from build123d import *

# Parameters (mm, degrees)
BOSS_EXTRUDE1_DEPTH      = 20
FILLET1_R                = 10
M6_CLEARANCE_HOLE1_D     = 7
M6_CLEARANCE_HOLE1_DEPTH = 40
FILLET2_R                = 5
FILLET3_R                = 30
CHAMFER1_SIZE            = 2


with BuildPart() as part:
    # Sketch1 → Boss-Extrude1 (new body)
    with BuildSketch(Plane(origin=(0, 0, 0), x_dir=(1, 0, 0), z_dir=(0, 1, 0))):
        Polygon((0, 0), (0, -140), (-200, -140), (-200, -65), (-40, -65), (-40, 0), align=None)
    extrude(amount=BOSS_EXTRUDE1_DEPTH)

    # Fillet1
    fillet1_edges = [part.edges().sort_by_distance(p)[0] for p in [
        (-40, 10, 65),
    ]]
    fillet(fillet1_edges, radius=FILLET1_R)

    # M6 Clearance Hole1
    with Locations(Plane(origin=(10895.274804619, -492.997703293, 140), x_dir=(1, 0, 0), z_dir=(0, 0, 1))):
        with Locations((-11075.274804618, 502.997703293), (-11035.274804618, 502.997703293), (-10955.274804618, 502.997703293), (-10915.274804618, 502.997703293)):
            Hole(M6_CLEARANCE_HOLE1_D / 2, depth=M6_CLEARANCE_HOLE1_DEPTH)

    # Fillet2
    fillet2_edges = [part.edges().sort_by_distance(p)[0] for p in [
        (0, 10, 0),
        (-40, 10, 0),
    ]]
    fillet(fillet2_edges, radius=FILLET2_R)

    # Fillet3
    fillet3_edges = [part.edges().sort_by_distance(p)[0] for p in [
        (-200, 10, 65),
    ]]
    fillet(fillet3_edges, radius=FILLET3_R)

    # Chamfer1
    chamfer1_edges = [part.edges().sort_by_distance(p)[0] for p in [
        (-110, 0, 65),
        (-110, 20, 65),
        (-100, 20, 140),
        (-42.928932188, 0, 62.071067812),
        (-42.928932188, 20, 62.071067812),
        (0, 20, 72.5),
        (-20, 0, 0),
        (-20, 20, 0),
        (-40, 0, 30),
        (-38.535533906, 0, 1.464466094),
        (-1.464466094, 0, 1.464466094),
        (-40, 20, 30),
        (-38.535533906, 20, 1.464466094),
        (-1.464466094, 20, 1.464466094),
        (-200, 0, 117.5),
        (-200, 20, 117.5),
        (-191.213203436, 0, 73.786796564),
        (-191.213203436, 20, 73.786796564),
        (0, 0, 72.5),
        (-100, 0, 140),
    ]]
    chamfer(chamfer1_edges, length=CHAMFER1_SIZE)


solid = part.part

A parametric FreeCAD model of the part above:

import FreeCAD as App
import Part
import Sketcher
Q = App.Units.Quantity


def edges_at(feature, points):
    """Names of the edges that pass closest to the given points."""
    edges = feature.Shape.Edges
    near = lambda p: min(range(len(edges)), key=lambda i: edges[i].distToShape(Part.Vertex(*p))[0])
    return sorted({f"Edge{near(p) + 1}" for p in points})

doc = App.newDocument("Part")
body = doc.addObject("PartDesign::Body", "Body")

# Sketch on XZ plane
sketch1 = body.newObject("Sketcher::SketchObject", "Sketch")
sketch1.AttachmentSupport = (doc.getObject("XZ_Plane"), [""])
sketch1.MapMode = "FlatFace"
sketch1.addGeometry([
    Part.LineSegment(App.Vector(0, 140, 0), App.Vector(0, 0, 0)),  # 0
    Part.LineSegment(App.Vector(0, 0, 0), App.Vector(-40, 0, 0)),  # 1
    Part.LineSegment(App.Vector(-40, 0, 0), App.Vector(-40, 65, 0)),  # 2
    Part.LineSegment(App.Vector(-40, 65, 0), App.Vector(-200, 65, 0)),  # 3
    Part.LineSegment(App.Vector(-200, 65, 0), App.Vector(-200, 140, 0)),  # 4
    Part.LineSegment(App.Vector(-200, 140, 0), App.Vector(0, 140, 0)),  # 5
], False)
sketch1.addConstraint([
    Sketcher.Constraint("Coincident", 0, 2, 1, 1),
    Sketcher.Constraint("Coincident", 1, 2, 2, 1),
    Sketcher.Constraint("Coincident", 2, 2, 3, 1),
    Sketcher.Constraint("Coincident", 3, 2, 4, 1),
    Sketcher.Constraint("Coincident", 4, 2, 5, 1),
    Sketcher.Constraint("Coincident", 5, 2, 0, 1),
    Sketcher.Constraint("Vertical", 0),
    Sketcher.Constraint("Horizontal", 1),
    Sketcher.Constraint("Vertical", 2),
    Sketcher.Constraint("Horizontal", 3),
    Sketcher.Constraint("Vertical", 4),
    Sketcher.Constraint("Horizontal", 5),
    Sketcher.Constraint("Coincident", 0, 2, -1, 1),
    Sketcher.Constraint("DistanceX", 1, 2, 1, 1, Q("40 mm")),
    Sketcher.Constraint("DistanceX", 3, 2, 3, 1, Q("160 mm")),
    Sketcher.Constraint("DistanceY", 0, 2, 0, 1, Q("140 mm")),
    Sketcher.Constraint("DistanceY", 2, 1, 2, 2, Q("65 mm")),
])
pad1 = body.newObject("PartDesign::Pad", "Pad")
pad1.Profile = sketch1
pad1.Length = 20
pad1.Reversed = True
doc.recompute()

fillet = body.newObject("PartDesign::Fillet", "Fillet")
fillet.Base = (pad1, edges_at(pad1, [(-40, 10, 65)]))
fillet.Radius = 10

# Sketch on XY plane
sketch2 = body.newObject("Sketcher::SketchObject", "Sketch001")
sketch2.AttachmentSupport = (doc.getObject("XY_Plane"), [""])
sketch2.MapMode = "FlatFace"
sketch2.AttachmentOffset = App.Placement(App.Vector(0, 0, 140), App.Rotation())
sketch2.addGeometry([
    Part.Circle(App.Vector(-180, 10, 0), App.Vector(0, 0, 1), 3.5),
    Part.Circle(App.Vector(-140, 10, 0), App.Vector(0, 0, 1), 3.5),
    Part.Circle(App.Vector(-60, 10, 0), App.Vector(0, 0, 1), 3.5),
    Part.Circle(App.Vector(-20, 10, 0), App.Vector(0, 0, 1), 3.5),
], False)
sketch2.addConstraint([
    Sketcher.Constraint("Equal", 0, 1),
    Sketcher.Constraint("Equal", 1, 2),
    Sketcher.Constraint("Equal", 2, 3),
    Sketcher.Constraint("Horizontal", 0, 3, 1, 3),
    Sketcher.Constraint("Horizontal", 1, 3, 2, 3),
    Sketcher.Constraint("Horizontal", 2, 3, 3, 3),
    Sketcher.Constraint("Diameter", 0, Q("7 mm")),
    Sketcher.Constraint("DistanceX", 0, 3, -1, 1, Q("180 mm")),
    Sketcher.Constraint("DistanceY", -1, 1, 0, 3, Q("10 mm")),
    Sketcher.Constraint("DistanceX", 1, 3, -1, 1, Q("140 mm")),
    Sketcher.Constraint("DistanceX", 2, 3, -1, 1, Q("60 mm")),
    Sketcher.Constraint("DistanceX", 3, 3, -1, 1, Q("20 mm")),
])
doc.recompute()
hole = body.newObject("PartDesign::Hole", "Hole")
hole.Profile = sketch2
hole.ThreadType = "None"
hole.Diameter = 7
hole.DepthType = "Dimension"
hole.Depth = 40
hole.DrillPoint = "Flat"
doc.recompute()

fillet2 = body.newObject("PartDesign::Fillet", "Fillet001")
fillet2.Base = (hole, edges_at(hole, [(0, 10, 0), (-40, 10, 0)]))
fillet2.Radius = 5
doc.recompute()

fillet3 = body.newObject("PartDesign::Fillet", "Fillet002")
fillet3.Base = (fillet2, edges_at(fillet2, [(-200, 10, 65)]))
fillet3.Radius = 30
doc.recompute()

chamfer = body.newObject("PartDesign::Chamfer", "Chamfer")
chamfer.Base = (fillet3, edges_at(fillet3, [
    (-110, 0, 65),
    (-110, 20, 65),
    (-100, 20, 140),
    (-42.929, 0, 62.071),
    (-42.929, 20, 62.071),
    (0, 20, 72.5),
    (-20, 0, 0),
    (-20, 20, 0),
    (-40, 0, 30),
    (-38.536, 0, 1.464),
    (-1.464, 0, 1.464),
    (-40, 20, 30),
    (-38.536, 20, 1.464),
    (-1.464, 20, 1.464),
    (-200, 0, 117.5),
    (-200, 20, 117.5),
    (-191.213, 0, 73.787),
    (-191.213, 20, 73.787),
    (0, 0, 72.5),
    (-100, 0, 140),
]))
chamfer.Size = 2

doc.recompute()
